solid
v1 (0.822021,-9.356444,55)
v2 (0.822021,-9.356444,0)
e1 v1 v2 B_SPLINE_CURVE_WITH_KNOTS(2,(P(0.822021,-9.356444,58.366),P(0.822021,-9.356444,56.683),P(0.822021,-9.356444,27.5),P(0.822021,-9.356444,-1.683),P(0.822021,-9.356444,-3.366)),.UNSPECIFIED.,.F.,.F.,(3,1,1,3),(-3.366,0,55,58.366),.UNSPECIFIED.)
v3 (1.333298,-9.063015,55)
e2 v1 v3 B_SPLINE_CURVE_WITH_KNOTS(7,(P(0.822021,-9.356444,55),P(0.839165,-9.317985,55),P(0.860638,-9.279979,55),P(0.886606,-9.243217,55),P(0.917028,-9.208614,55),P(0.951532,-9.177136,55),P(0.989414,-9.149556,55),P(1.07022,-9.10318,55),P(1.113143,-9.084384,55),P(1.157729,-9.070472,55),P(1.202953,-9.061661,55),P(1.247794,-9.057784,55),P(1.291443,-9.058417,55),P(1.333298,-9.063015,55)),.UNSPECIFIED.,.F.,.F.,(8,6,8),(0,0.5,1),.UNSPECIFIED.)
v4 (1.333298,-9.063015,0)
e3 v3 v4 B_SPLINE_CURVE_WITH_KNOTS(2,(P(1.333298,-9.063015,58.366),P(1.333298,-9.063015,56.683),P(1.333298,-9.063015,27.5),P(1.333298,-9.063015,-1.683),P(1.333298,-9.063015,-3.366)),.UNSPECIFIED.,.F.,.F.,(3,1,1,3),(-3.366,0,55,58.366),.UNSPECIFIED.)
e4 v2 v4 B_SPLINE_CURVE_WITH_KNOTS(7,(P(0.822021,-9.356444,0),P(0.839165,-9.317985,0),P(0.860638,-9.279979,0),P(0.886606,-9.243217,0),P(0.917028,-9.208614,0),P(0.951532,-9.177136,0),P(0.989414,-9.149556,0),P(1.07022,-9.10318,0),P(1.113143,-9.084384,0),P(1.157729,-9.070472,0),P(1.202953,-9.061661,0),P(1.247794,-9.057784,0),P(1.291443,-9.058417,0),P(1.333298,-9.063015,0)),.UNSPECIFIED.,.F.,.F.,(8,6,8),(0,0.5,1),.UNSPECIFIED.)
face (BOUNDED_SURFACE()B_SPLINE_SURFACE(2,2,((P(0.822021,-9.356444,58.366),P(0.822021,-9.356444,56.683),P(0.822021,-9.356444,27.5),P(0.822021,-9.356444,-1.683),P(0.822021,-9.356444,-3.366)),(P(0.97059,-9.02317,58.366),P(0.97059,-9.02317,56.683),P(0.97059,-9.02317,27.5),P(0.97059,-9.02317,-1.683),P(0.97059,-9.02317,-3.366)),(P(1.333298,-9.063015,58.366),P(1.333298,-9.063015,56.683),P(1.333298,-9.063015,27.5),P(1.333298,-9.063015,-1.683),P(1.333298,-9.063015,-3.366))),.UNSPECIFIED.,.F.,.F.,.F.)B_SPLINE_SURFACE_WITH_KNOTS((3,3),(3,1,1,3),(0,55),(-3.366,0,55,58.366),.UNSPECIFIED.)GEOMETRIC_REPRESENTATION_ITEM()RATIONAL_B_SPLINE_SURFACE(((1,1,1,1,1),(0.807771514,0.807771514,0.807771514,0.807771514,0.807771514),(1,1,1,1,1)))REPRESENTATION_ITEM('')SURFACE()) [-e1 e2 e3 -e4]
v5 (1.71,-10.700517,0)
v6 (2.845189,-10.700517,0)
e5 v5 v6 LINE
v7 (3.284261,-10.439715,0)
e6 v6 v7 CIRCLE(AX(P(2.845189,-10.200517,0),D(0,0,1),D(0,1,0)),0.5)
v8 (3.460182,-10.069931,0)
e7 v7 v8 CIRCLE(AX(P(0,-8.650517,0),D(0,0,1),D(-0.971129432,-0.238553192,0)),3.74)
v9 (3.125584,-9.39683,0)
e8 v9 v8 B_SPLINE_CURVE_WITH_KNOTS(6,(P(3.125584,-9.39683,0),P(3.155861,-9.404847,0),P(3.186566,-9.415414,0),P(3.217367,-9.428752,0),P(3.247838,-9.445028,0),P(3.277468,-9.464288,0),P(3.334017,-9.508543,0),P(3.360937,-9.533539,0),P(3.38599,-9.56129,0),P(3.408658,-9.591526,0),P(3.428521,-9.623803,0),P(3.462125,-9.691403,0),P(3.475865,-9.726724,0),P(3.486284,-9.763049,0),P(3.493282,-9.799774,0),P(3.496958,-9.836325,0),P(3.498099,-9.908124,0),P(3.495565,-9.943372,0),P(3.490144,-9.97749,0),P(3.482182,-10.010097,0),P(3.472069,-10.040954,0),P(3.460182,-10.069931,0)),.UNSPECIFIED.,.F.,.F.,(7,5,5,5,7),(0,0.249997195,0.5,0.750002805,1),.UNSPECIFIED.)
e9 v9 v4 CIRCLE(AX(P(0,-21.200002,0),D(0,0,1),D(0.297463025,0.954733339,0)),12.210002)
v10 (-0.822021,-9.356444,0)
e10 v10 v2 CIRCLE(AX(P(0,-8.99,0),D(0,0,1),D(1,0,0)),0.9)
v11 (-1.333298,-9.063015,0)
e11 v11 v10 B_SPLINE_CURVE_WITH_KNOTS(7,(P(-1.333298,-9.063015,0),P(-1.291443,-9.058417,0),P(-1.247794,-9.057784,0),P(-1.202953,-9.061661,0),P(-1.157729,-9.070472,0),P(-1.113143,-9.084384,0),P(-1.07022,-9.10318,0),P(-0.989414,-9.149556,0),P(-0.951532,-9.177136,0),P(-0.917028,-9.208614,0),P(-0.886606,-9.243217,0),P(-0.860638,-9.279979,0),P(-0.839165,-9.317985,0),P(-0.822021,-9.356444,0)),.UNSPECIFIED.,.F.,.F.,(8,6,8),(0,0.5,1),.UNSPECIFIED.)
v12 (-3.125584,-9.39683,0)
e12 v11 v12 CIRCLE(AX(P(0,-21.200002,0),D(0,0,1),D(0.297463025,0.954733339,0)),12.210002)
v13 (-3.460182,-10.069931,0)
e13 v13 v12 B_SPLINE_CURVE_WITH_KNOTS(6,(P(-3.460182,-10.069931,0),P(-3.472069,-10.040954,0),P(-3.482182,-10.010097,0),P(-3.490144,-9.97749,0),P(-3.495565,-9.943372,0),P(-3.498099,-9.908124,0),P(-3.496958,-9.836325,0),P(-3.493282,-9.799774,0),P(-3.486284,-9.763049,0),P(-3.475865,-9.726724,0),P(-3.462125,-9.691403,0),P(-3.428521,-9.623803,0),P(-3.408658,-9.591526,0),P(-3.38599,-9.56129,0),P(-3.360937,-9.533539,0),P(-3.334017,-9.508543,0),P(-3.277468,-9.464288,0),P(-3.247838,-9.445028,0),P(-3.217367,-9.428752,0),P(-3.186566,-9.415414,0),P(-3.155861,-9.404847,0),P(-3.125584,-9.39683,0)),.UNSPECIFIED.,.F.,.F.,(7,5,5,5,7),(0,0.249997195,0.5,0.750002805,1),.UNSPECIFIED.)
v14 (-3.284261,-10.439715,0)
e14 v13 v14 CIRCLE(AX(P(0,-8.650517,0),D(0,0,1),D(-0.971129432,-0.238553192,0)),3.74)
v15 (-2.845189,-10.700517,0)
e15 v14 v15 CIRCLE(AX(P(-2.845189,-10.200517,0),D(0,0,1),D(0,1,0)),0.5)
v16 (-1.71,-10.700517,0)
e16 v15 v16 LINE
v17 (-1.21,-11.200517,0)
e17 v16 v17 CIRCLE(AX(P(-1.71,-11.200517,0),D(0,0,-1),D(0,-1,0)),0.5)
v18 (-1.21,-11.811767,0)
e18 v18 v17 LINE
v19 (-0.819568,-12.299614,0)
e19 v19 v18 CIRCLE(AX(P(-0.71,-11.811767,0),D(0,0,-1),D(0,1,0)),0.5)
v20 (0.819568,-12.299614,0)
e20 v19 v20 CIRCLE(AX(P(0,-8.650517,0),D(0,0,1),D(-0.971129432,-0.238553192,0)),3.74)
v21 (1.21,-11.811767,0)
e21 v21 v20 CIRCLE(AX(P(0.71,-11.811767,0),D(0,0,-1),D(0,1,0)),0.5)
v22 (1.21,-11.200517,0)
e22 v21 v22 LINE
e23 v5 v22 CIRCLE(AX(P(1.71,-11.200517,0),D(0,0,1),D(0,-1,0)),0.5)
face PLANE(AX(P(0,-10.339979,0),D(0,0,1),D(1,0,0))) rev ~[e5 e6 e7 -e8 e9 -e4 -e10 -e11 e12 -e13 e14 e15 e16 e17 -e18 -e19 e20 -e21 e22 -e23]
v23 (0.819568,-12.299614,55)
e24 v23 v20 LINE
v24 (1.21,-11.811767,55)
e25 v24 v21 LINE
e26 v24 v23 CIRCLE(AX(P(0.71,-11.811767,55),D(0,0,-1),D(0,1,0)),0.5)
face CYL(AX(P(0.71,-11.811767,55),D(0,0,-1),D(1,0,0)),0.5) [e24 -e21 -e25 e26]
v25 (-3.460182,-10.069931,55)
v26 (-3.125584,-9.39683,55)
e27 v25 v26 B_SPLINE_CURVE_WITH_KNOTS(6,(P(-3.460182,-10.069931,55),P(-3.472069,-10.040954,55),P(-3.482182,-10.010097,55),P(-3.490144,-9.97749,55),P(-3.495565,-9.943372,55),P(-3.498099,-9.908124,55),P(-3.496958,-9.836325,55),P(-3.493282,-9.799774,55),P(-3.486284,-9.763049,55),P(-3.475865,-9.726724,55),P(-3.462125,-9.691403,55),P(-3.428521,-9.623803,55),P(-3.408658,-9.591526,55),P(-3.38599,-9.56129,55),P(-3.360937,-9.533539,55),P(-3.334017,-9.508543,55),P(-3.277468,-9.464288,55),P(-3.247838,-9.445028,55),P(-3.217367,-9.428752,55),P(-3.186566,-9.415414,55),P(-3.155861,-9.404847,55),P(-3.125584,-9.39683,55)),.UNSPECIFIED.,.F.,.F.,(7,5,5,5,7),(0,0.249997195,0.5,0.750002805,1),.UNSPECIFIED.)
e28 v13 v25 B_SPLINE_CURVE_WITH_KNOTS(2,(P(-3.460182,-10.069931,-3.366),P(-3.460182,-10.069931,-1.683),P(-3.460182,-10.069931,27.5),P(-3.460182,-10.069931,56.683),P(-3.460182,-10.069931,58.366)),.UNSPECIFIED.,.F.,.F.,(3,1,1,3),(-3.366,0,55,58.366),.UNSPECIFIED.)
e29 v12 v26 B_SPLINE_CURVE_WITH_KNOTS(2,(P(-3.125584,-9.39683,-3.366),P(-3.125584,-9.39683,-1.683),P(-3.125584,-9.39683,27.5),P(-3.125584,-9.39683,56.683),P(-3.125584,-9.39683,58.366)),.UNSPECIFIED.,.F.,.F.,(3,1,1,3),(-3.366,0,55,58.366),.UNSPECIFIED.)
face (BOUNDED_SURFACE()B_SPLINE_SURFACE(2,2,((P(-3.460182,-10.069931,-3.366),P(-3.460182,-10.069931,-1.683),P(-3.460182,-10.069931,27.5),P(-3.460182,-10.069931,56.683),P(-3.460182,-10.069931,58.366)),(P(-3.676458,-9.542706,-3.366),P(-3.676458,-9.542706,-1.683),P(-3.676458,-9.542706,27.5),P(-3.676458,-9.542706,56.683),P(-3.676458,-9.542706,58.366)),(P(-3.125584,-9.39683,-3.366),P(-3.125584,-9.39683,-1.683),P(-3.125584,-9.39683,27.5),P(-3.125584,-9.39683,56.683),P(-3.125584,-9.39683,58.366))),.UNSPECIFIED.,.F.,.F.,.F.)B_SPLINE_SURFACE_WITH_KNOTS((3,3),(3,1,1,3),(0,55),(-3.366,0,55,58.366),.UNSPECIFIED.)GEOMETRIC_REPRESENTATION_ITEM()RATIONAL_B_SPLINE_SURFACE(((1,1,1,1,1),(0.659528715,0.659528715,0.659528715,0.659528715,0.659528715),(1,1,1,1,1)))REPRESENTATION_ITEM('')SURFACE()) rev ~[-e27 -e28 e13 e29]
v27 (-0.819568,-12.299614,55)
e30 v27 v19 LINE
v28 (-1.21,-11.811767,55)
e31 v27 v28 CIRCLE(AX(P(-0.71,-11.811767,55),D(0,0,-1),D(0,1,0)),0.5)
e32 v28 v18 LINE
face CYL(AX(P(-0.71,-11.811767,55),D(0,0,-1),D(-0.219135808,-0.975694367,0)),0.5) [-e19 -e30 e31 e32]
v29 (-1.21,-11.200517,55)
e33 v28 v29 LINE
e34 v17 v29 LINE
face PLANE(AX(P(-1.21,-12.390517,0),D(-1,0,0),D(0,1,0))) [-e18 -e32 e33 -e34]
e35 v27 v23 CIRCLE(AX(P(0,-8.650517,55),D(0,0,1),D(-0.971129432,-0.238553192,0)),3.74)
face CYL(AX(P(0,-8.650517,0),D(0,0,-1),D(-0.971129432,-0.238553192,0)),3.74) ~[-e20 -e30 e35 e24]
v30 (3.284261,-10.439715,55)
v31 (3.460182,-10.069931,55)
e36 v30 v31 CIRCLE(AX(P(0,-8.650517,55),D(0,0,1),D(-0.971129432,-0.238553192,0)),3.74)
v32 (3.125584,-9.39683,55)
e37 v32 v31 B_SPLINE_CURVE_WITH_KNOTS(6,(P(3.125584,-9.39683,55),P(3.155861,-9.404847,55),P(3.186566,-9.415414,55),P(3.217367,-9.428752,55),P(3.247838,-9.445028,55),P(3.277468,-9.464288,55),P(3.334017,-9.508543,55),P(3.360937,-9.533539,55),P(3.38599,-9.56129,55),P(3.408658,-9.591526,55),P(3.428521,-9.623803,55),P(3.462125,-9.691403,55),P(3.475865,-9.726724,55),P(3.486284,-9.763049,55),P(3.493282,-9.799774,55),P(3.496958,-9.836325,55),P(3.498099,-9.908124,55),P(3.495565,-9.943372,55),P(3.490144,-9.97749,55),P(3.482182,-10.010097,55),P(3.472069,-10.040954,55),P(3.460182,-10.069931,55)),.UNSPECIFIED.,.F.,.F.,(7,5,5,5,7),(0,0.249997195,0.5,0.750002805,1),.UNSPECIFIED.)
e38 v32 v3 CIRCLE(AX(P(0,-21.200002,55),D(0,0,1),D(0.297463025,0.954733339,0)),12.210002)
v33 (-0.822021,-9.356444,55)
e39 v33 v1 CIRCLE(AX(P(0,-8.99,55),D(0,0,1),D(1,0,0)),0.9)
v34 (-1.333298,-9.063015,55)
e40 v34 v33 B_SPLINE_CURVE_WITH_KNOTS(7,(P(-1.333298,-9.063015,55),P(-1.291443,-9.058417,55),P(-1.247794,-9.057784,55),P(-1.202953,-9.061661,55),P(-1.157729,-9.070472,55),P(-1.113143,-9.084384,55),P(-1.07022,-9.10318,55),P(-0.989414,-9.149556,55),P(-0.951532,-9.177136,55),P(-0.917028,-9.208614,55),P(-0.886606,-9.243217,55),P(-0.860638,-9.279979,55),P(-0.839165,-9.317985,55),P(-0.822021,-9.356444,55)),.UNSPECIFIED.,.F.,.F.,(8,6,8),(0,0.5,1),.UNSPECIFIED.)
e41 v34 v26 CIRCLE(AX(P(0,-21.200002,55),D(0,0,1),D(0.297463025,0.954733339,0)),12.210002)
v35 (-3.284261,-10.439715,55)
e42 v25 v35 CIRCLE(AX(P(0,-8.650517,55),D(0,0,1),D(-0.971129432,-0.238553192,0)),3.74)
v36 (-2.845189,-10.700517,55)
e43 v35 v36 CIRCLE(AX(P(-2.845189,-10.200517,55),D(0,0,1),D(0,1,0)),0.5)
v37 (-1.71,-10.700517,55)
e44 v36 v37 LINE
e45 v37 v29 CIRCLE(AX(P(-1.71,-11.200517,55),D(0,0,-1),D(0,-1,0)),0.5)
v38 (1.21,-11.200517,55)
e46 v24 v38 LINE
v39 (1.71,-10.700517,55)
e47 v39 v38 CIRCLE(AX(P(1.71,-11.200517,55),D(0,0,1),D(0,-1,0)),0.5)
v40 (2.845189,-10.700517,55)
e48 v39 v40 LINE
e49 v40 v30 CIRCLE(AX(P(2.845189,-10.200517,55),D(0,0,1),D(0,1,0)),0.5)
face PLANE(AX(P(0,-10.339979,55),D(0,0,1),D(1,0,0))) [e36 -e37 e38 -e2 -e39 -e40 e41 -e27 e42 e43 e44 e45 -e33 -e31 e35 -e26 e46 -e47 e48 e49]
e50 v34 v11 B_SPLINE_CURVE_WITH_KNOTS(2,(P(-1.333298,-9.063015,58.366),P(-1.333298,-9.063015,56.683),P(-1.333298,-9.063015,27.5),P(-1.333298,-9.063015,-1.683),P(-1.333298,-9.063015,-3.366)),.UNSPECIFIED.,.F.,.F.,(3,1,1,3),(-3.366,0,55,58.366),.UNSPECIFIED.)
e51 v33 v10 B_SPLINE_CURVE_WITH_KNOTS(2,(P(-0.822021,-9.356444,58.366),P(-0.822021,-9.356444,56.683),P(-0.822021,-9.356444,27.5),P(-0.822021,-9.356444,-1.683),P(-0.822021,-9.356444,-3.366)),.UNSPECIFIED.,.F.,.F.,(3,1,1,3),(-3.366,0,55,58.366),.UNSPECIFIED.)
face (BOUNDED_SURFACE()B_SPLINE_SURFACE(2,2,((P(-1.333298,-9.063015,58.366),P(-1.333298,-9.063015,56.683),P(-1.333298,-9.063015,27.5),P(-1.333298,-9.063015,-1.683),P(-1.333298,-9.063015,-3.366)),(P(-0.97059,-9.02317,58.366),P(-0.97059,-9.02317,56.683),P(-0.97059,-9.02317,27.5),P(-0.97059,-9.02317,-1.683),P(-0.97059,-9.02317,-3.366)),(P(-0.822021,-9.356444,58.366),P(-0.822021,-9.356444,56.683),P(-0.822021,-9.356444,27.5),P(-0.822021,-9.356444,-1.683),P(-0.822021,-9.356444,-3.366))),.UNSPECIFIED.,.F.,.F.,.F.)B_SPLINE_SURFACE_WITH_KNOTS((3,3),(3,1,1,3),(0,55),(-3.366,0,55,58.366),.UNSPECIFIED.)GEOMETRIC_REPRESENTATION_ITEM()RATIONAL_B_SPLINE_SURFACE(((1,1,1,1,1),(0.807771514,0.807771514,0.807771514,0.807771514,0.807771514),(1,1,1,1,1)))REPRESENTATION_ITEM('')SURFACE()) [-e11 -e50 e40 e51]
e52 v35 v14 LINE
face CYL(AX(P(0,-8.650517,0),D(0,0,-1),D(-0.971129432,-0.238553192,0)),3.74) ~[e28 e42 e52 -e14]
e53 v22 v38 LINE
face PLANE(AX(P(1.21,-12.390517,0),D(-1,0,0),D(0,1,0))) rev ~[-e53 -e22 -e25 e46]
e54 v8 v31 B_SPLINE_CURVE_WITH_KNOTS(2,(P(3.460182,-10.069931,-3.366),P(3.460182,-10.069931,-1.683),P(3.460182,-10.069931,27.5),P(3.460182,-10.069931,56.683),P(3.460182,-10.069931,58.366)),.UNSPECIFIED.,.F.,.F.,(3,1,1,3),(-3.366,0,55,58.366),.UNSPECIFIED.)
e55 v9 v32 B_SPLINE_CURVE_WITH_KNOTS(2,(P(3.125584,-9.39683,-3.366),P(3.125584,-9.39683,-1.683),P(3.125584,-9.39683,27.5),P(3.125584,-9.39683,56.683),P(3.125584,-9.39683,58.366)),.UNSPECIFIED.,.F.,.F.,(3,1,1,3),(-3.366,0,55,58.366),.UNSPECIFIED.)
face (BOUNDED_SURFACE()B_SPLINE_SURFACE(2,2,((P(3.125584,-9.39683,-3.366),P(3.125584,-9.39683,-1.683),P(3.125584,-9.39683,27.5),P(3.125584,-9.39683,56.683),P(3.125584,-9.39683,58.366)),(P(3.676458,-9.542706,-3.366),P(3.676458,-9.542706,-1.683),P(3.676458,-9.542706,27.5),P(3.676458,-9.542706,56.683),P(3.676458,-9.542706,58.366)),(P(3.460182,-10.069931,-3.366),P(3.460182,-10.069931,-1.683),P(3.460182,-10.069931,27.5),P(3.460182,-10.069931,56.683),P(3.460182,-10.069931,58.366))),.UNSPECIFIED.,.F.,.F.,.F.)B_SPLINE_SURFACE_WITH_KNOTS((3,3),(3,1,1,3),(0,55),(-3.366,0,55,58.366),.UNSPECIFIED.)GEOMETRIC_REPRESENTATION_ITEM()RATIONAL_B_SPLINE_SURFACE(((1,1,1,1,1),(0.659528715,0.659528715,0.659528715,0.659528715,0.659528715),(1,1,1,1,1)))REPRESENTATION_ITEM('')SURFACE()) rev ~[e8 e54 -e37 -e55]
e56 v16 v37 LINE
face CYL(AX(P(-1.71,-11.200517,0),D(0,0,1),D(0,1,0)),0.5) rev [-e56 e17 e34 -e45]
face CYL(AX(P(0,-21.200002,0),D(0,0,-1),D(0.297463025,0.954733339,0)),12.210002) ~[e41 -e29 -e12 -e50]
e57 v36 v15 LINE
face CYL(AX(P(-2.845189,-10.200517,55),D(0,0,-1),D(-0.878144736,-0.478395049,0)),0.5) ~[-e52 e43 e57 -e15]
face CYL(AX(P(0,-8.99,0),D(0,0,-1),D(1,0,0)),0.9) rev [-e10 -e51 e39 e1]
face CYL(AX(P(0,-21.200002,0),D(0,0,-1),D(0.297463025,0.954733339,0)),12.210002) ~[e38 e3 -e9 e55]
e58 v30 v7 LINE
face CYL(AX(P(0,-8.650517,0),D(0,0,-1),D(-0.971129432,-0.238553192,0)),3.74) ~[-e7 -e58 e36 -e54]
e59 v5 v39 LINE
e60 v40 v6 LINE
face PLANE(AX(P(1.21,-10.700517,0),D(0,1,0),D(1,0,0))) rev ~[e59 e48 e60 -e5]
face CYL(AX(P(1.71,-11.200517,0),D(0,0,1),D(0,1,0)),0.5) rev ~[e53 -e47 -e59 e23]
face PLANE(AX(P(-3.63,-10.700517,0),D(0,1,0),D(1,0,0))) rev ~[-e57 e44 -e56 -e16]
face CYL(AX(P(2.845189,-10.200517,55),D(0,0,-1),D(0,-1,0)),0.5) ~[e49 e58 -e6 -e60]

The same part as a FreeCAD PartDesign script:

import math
import FreeCAD as App
import Part
import Sketcher

V = App.Vector


def edges_at(feature, points):
    """Names of the edges that pass closest to the given points."""
    edges = feature.Shape.Edges
    near = lambda p: min(range(len(edges)), key=lambda i: edges[i].distToShape(Part.Vertex(*p))[0])
    return sorted({f"Edge{near(p) + 1}" for p in points})

doc = App.newDocument("Part")
body = doc.addObject("PartDesign::Body", "Body")

sketch1 = body.newObject("Sketcher::SketchObject", "Sketch")
sketch1.AttachmentSupport = (doc.getObject("XY_Plane"), [""])
sketch1.MapMode = "FlatFace"
sketch1.addGeometry(Part.Circle(V(0, 12.21, 0), V(0, 0, 1), 0.9), False)
sketch1.addConstraint([
    Sketcher.Constraint("PointOnObject", 0, 3, -2),
    Sketcher.Constraint("Diameter", 0, 1.8),
    Sketcher.Constraint("DistanceY", -1, 1, 0, 3, 12.21),
])
pad1 = body.newObject("PartDesign::Pad", "Pad")
pad1.Profile = sketch1
pad1.Length = 55
body2 = doc.addObject("PartDesign::Body", "Body001")

sketch2 = body2.newObject("Sketcher::SketchObject", "Sketch001")
sketch2.AttachmentSupport = (doc.getObject("XY_Plane001"), [""])
sketch2.MapMode = "FlatFace"
sketch2.addGeometry([
    Part.LineSegment(V(1.21, 10.499483, 0), V(1.21, 8.809483, 0)),
    Part.LineSegment(V(1.21, 8.809483, 0), V(3.63, 8.809483, 0)),
    Part.LineSegment(V(3.63, 8.809483, 0), V(3.63, 10.499483, 0)),
    Part.LineSegment(V(3.63, 10.499483, 0), V(1.21, 10.499483, 0)),
], False)
sketch2.addConstraint([
    Sketcher.Constraint("Coincident", 0, 2, 1, 1),
    Sketcher.Constraint("Coincident", 1, 2, 2, 1),
    Sketcher.Constraint("Coincident", 2, 2, 3, 1),
    Sketcher.Constraint("Coincident", 3, 2, 0, 1),
    Sketcher.Constraint("Vertical", 0),
    Sketcher.Constraint("Horizontal", 1),
    Sketcher.Constraint("Vertical", 2),
    Sketcher.Constraint("Horizontal", 3),
    Sketcher.Constraint("DistanceX", 1, 1, 1, 2, 2.42),
    Sketcher.Constraint("DistanceY", 0, 2, 0, 1, 1.69),
    Sketcher.Constraint("DistanceX", -1, 1, 0, 2, 1.21),
    Sketcher.Constraint("DistanceY", -1, 1, 0, 2, 8.809483),
])
pad2 = body2.newObject("PartDesign::Pad", "Pad001")
pad2.Profile = sketch2
pad2.Length = 55
body3 = doc.addObject("PartDesign::Body", "Body002")

sketch3 = body3.newObject("Sketcher::SketchObject", "Sketch002")
sketch3.AttachmentSupport = (doc.getObject("XY_Plane002"), [""])
sketch3.MapMode = "FlatFace"
sketch3.addGeometry([
    Part.LineSegment(V(-3.63, 10.499483, 0), V(-3.63, 8.809483, 0)),
    Part.LineSegment(V(-3.63, 8.809483, 0), V(-1.21, 8.809483, 0)),
    Part.LineSegment(V(-1.21, 8.809483, 0), V(-1.21, 10.499483, 0)),
    Part.LineSegment(V(-1.21, 10.499483, 0), V(-3.63, 10.499483, 0)),
], False)
sketch3.addConstraint([
    Sketcher.Constraint("Coincident", 0, 2, 1, 1),
    Sketcher.Constraint("Coincident", 1, 2, 2, 1),
    Sketcher.Constraint("Coincident", 2, 2, 3, 1),
    Sketcher.Constraint("Coincident", 3, 2, 0, 1),
    Sketcher.Constraint("Vertical", 0),
    Sketcher.Constraint("Horizontal", 1),
    Sketcher.Constraint("Vertical", 2),
    Sketcher.Constraint("Horizontal", 3),
    Sketcher.Constraint("DistanceX", 1, 1, 1, 2, 2.42),
    Sketcher.Constraint("DistanceY", 0, 2, 0, 1, 1.69),
    Sketcher.Constraint("DistanceX", 0, 2, -1, 1, 3.63),
    Sketcher.Constraint("DistanceY", -1, 1, 0, 2, 8.809483),
])
pad3 = body3.newObject("PartDesign::Pad", "Pad002")
pad3.Profile = sketch3
pad3.Length = 55
body4 = doc.addObject("PartDesign::Body", "Body003")

sketch4 = body4.newObject("Sketcher::SketchObject", "Sketch003")
sketch4.AttachmentSupport = (doc.getObject("XY_Plane003"), [""])
sketch4.MapMode = "FlatFace"
sketch4.addGeometry([
    Part.ArcOfCircle(Part.Circle(V(0, 12.549483, 0), V(0, 0, 1), 3.74), math.radians(-166.198836), math.radians(-13.801164)),
    Part.ArcOfCircle(Part.Circle(V(0, -0.000002, 0), V(0, 0, 1), 12.210002), math.radians(72.69471), math.radians(107.30529)),
], False)
sketch4.addConstraint([
    Sketcher.Constraint("Coincident", 0, 1, 1, 2),
    Sketcher.Constraint("Coincident", 1, 1, 0, 2),
    Sketcher.Constraint("Coincident", 1, 3, -1, 1),
    Sketcher.Constraint("PointOnObject", 0, 3, -2),
    Sketcher.Constraint("Radius", 0, 3.74),
    Sketcher.Constraint("Radius", 1, 12.210002),
    Sketcher.Constraint("DistanceY", 0, 1, 0, 3, 0.892189),
])
pad4 = body4.newObject("PartDesign::Pad", "Pad003")
pad4.Profile = sketch4
pad4.Length = 55
doc.recompute()

boolean = body4.newObject("PartDesign::Boolean", "Boolean")
boolean.Type = "Cut"
boolean.addObjects([body3])
doc.recompute()

boolean2 = body4.newObject("PartDesign::Boolean", "Boolean001")
boolean2.Type = "Cut"
boolean2.addObjects([body2])
doc.recompute()

boolean3 = body4.newObject("PartDesign::Boolean", "Boolean002")
boolean3.Type = "Cut"
boolean3.addObjects([body])
doc.recompute()

fillet = body4.newObject("PartDesign::Fillet", "Fillet")
fillet.Base = (boolean3, edges_at(boolean3, [
    (-3.128, 10.499, 27.5),
    (-3.632, 11.657, 27.5),
    (-1.21, 10.499, 27.5),
    (-0.899, 12.177, 27.5),
    (3.128, 10.499, 27.5),
    (1.21, 10.499, 27.5),
    (1.21, 9.011, 27.5),
    (-1.21, 9.011, 27.5),
    (0.899, 12.177, 27.5),
    (3.632, 11.657, 27.5),
]))
fillet.Radius = 0.5
body5 = doc.addObject("PartDesign::Body", "Body004")
doc.recompute()

body4.Placement = App.Placement(V(0, -21.2, 0), App.Rotation(V(0, 0, 1), 0))
boolean4 = body5.newObject("PartDesign::Boolean", "Boolean003")
boolean4.Type = "Fuse"
boolean4.addObjects([body4])

doc.recompute()
